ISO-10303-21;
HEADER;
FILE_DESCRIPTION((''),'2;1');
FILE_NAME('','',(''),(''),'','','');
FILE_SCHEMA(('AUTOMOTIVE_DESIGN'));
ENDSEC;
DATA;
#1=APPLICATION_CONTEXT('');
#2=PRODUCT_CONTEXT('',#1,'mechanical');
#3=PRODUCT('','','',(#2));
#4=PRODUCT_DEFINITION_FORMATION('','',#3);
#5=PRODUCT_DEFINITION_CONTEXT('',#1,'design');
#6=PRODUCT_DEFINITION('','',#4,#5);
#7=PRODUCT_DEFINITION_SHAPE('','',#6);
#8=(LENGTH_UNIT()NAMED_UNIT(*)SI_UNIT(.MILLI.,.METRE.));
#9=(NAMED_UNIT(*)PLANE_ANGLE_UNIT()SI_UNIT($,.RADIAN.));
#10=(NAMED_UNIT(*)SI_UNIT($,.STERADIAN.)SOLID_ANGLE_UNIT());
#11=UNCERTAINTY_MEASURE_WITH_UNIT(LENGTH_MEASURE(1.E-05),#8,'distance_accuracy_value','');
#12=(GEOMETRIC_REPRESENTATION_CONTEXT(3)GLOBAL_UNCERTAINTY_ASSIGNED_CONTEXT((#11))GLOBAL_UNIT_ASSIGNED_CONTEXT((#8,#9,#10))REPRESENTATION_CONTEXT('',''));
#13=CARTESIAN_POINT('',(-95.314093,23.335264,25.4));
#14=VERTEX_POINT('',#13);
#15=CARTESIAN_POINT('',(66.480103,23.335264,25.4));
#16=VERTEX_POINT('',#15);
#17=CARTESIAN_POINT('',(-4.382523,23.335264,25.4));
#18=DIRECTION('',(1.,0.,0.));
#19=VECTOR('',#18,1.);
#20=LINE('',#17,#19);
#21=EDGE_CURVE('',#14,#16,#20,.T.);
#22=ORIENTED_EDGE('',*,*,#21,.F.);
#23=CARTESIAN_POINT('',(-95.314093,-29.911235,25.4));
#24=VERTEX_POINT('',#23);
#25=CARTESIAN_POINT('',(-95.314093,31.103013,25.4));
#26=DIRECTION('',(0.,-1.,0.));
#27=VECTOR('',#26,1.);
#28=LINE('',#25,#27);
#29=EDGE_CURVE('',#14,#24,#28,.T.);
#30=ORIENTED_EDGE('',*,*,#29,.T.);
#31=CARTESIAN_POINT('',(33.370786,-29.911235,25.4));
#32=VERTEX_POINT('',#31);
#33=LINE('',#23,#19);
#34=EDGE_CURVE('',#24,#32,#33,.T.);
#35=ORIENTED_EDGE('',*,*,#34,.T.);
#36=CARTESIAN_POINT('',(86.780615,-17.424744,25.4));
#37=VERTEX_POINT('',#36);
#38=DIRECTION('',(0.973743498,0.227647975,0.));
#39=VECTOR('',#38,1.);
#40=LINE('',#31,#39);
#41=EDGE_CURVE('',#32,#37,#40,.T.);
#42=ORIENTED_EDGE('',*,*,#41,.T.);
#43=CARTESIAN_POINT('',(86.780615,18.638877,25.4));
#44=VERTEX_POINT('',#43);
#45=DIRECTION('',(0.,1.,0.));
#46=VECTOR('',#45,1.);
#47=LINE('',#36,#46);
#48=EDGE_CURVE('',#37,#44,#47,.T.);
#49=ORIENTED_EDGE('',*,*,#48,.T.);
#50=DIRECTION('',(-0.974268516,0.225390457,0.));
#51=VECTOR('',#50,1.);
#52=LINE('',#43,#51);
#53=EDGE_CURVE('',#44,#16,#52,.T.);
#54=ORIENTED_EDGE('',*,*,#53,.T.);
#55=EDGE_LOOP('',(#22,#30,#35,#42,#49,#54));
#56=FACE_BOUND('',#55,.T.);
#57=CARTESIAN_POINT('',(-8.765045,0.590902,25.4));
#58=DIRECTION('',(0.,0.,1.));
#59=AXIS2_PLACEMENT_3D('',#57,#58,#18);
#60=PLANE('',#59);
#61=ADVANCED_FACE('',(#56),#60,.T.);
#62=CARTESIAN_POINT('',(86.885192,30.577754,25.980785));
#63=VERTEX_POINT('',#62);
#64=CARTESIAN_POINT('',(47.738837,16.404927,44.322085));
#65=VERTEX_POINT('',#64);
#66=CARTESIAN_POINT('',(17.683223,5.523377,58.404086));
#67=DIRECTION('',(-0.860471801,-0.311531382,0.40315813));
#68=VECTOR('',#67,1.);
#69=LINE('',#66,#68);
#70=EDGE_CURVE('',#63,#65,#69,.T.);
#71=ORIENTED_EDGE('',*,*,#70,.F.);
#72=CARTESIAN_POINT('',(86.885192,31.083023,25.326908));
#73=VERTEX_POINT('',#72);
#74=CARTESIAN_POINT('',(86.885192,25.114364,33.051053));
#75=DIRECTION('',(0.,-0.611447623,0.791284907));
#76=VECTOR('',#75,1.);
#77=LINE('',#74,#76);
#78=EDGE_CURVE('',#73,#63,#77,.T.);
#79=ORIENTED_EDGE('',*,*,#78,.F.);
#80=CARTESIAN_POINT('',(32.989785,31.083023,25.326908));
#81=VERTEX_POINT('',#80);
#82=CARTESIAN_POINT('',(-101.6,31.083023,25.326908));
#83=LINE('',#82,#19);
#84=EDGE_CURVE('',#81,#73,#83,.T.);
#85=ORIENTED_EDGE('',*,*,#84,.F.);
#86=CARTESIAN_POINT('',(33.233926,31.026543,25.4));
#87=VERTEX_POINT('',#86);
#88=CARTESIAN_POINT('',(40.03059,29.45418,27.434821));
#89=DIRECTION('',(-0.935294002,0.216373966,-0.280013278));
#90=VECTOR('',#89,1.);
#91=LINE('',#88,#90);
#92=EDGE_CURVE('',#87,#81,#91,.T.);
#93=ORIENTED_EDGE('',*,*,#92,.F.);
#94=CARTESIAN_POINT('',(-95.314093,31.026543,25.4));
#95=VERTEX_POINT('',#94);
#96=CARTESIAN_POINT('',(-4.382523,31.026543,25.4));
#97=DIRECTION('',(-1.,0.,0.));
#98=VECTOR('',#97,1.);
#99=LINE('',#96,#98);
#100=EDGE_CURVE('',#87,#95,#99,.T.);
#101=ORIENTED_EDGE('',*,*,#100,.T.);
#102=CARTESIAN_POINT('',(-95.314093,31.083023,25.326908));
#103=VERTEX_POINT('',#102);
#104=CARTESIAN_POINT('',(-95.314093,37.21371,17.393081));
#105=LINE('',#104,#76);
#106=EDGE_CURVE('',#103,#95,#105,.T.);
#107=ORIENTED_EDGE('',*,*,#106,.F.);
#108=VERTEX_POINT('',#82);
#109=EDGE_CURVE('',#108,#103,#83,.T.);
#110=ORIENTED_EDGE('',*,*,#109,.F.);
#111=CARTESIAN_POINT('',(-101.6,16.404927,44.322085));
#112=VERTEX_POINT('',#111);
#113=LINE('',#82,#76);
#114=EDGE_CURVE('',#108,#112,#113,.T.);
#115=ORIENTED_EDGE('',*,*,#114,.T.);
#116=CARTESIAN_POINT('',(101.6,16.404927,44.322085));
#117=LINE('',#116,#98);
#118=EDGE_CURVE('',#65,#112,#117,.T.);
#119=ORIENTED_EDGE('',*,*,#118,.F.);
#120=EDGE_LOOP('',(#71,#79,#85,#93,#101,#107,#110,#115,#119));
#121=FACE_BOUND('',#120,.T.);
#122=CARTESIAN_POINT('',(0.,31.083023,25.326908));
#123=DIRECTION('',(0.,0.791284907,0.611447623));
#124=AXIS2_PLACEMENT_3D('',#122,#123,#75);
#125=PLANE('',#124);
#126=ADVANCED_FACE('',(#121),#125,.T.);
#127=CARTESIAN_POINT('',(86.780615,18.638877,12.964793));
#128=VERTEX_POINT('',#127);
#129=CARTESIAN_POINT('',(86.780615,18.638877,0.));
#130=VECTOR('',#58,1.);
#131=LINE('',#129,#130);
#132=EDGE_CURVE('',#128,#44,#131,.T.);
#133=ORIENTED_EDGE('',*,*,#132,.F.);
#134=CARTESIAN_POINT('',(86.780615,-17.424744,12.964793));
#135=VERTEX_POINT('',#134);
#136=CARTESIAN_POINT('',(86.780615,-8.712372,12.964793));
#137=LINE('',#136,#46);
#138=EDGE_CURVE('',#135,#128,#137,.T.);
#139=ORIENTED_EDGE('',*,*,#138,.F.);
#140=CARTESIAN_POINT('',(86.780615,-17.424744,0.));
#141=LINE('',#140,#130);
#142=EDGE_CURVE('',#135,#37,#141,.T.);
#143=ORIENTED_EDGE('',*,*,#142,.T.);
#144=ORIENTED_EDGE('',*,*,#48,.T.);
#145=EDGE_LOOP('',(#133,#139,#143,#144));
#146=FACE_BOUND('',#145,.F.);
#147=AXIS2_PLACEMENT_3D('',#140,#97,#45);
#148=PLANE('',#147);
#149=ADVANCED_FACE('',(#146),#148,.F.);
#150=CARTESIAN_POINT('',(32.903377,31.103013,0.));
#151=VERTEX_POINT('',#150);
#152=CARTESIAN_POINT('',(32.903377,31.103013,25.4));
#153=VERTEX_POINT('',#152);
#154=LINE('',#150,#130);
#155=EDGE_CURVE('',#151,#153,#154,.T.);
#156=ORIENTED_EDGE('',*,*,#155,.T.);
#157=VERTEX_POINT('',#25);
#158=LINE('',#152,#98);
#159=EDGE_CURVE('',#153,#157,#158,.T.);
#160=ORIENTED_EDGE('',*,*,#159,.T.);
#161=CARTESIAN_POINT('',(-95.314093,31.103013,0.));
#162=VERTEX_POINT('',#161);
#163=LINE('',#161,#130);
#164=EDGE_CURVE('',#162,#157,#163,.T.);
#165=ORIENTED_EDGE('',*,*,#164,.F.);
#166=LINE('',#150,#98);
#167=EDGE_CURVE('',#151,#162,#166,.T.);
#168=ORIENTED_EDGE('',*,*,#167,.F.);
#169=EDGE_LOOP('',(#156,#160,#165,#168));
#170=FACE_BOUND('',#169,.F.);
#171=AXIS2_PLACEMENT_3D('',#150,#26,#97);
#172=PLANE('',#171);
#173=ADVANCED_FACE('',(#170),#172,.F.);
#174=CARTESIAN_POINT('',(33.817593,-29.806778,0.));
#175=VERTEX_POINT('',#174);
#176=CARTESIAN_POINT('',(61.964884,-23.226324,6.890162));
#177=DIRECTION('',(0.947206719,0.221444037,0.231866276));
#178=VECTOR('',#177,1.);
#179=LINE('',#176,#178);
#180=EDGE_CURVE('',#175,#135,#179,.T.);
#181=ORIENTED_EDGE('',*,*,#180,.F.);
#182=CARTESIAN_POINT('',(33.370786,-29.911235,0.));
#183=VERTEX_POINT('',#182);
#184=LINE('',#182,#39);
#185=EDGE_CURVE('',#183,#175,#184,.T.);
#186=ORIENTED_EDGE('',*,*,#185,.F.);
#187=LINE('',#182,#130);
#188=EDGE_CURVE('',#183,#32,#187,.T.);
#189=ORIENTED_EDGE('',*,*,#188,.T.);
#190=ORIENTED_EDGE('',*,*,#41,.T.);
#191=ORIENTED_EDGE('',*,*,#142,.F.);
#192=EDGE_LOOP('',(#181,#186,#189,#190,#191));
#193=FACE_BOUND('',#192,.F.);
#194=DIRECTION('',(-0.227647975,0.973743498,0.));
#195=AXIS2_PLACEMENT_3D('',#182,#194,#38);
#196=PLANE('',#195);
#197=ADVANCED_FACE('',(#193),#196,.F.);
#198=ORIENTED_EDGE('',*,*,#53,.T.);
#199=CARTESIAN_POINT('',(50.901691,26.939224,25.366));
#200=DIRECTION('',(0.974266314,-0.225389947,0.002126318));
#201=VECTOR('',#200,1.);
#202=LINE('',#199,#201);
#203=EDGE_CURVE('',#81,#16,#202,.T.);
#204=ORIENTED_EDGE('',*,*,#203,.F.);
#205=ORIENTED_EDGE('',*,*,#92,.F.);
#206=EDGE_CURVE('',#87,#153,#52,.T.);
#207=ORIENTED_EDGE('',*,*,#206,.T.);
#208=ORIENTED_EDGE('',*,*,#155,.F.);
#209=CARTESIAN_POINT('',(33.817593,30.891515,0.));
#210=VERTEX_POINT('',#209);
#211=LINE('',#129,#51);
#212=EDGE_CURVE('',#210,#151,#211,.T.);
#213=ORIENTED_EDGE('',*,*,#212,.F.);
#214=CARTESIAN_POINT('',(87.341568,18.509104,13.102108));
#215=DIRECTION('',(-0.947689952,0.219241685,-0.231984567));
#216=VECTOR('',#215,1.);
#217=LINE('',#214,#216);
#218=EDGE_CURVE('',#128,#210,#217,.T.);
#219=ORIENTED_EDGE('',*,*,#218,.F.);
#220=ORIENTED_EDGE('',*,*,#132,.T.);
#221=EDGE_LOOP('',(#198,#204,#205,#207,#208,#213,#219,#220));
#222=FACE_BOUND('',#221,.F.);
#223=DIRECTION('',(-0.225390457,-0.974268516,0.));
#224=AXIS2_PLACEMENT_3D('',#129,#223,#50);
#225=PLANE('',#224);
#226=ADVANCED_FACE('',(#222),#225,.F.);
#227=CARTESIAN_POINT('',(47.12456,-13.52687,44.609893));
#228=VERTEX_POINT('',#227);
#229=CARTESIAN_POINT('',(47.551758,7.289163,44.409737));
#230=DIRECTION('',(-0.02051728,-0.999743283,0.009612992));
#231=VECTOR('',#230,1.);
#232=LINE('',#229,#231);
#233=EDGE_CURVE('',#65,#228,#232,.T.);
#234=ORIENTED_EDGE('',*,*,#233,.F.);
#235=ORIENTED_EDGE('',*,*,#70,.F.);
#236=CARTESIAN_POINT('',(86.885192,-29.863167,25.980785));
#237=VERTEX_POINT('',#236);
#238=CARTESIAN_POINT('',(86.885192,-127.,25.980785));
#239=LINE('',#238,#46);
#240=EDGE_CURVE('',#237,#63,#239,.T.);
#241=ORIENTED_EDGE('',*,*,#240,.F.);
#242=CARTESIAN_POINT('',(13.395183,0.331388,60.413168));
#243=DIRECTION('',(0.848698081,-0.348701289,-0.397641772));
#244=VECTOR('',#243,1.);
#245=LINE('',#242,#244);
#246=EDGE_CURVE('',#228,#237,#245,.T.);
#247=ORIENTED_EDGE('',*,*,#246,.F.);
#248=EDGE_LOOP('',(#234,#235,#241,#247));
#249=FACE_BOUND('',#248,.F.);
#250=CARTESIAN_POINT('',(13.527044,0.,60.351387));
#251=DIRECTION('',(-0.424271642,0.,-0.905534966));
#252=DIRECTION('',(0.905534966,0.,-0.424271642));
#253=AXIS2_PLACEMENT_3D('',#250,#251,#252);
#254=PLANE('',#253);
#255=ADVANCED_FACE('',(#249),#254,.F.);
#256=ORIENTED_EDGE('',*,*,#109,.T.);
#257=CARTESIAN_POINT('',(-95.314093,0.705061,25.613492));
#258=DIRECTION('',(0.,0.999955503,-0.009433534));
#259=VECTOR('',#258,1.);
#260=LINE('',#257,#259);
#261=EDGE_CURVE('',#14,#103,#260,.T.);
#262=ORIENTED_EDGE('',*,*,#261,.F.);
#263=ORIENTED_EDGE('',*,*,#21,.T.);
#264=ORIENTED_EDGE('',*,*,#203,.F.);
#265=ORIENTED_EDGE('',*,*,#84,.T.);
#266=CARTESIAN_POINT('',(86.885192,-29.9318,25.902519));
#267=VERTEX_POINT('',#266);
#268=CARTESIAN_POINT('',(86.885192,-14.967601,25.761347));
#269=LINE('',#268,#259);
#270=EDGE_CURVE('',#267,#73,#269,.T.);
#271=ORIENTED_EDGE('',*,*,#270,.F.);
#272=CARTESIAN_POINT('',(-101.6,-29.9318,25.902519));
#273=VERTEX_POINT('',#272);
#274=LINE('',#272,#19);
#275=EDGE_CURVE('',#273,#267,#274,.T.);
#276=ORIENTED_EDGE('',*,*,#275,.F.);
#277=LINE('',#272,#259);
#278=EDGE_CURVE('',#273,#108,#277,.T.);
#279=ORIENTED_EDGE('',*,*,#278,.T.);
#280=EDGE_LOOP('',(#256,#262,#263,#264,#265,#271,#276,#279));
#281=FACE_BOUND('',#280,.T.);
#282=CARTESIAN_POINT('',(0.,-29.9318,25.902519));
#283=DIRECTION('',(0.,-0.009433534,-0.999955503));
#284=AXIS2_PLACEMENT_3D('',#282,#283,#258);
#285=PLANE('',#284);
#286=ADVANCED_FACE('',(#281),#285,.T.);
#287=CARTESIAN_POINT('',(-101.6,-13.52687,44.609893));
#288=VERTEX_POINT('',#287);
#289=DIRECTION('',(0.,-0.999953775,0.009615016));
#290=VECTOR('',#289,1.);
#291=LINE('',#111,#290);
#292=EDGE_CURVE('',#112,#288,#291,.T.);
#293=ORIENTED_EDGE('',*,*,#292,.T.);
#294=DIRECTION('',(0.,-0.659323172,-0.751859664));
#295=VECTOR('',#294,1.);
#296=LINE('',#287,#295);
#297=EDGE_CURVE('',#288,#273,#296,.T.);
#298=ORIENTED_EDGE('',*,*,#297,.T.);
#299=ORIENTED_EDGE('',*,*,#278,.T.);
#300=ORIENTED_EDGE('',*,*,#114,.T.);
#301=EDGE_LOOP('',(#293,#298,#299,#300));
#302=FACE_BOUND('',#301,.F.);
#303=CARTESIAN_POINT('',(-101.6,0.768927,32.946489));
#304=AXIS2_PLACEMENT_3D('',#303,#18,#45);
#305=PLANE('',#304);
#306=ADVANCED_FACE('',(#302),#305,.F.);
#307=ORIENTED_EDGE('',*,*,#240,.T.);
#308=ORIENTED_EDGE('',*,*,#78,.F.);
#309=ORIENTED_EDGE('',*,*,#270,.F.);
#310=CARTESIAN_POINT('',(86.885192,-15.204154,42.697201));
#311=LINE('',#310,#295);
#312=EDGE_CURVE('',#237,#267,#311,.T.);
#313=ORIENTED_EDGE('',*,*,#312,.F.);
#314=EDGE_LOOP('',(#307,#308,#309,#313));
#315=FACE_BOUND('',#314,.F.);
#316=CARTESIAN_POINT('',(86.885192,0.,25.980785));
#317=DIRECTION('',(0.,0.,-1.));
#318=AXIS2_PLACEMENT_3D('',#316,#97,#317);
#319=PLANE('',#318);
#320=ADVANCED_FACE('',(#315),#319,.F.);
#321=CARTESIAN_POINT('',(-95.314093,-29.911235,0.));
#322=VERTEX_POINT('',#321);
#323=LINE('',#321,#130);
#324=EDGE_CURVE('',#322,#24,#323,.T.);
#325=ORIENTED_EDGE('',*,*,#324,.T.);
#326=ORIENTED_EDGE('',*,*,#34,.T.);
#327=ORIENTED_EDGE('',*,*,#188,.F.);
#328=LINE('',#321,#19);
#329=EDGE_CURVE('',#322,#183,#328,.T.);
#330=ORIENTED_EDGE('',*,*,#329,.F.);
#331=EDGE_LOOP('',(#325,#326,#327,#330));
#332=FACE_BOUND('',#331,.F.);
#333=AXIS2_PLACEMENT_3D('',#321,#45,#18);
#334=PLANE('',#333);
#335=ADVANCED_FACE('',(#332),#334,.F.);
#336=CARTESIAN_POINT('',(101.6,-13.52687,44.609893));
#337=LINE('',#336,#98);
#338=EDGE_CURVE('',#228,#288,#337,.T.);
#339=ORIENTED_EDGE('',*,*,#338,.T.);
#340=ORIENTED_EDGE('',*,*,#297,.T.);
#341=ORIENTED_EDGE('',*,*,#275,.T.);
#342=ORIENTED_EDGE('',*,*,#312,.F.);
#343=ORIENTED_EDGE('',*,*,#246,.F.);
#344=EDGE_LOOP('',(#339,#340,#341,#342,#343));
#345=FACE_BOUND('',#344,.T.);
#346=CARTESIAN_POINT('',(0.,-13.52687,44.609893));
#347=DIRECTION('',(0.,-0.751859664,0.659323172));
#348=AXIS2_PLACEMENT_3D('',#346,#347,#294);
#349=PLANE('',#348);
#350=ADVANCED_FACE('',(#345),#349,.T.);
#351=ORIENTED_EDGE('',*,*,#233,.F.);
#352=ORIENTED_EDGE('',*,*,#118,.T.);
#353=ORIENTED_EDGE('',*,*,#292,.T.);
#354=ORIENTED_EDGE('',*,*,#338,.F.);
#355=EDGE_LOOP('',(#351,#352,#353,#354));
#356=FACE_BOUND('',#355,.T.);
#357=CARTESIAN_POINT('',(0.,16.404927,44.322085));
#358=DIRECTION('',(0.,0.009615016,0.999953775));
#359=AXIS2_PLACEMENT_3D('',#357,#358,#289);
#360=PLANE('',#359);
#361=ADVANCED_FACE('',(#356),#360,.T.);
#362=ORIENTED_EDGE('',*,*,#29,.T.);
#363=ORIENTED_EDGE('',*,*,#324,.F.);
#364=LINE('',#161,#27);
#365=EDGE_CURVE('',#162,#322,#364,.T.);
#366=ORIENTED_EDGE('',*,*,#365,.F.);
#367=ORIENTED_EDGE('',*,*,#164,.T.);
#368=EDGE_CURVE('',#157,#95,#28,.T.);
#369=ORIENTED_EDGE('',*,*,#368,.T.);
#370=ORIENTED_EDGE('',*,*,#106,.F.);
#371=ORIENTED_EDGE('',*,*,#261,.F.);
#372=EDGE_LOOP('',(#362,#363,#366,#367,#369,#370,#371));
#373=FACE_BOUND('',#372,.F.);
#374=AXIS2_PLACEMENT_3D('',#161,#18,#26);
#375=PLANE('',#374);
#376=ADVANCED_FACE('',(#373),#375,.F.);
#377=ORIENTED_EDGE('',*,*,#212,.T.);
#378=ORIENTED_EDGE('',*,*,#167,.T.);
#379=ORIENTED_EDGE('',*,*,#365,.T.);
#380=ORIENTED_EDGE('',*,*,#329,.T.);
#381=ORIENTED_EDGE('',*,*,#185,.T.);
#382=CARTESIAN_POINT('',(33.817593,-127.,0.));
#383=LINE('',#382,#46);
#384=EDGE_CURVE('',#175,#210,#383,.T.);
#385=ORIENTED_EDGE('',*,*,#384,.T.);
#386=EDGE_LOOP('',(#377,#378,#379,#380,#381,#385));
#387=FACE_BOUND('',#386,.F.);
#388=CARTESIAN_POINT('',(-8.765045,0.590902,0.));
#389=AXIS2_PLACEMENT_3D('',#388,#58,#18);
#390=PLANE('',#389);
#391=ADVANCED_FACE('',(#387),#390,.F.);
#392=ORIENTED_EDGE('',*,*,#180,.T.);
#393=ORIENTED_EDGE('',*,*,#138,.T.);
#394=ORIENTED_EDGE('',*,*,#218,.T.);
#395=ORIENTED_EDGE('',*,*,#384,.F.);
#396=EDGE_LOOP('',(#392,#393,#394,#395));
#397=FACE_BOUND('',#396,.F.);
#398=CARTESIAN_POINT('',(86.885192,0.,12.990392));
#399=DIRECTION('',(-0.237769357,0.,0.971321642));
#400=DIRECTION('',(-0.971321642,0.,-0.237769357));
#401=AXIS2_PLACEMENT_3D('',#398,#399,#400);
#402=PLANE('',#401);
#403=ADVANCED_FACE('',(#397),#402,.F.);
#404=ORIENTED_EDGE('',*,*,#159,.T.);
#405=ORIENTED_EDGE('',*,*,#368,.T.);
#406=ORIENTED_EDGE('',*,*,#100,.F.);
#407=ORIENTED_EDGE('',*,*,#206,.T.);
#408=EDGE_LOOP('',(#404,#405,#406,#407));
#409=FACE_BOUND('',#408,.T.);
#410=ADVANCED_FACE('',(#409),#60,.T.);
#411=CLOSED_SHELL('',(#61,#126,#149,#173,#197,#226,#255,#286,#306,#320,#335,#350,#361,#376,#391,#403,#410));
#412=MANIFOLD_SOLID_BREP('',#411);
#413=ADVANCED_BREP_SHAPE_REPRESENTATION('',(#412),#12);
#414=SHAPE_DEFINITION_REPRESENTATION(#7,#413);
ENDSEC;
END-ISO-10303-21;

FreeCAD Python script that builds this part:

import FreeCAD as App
import Part
import Sketcher
from FreeCAD import Vector
Q = App.Units.Quantity

doc = App.newDocument("Part")
body = doc.addObject("PartDesign::Body", "Body")

sketch1 = doc.addObject("Sketcher::SketchObject", "Sketch")
body.addObject(sketch1)
sketch1.AttachmentSupport = (doc.XY_Plane, [""])
sketch1.MapMode = "FlatFace"
sketch1.addGeometry([
    Part.LineSegment(Vector(32.903377, 31.103013, 0), Vector(-95.314093, 31.103013, 0)),
    Part.LineSegment(Vector(-95.314093, 31.103013, 0), Vector(-95.314093, -29.911235, 0)),
    Part.LineSegment(Vector(-95.314093, -29.911235, 0), Vector(33.370786, -29.911235, 0)),
    Part.LineSegment(Vector(33.370786, -29.911235, 0), Vector(86.780615, -17.424744, 0)),
    Part.LineSegment(Vector(86.780615, -17.424744, 0), Vector(86.780615, 18.638877, 0)),
    Part.LineSegment(Vector(86.780615, 18.638877, 0), Vector(32.903377, 31.103013, 0)),
], False)
sketch1.addConstraint([
    Sketcher.Constraint("Coincident", 0, 2, 1, 1),
    Sketcher.Constraint("Coincident", 1, 2, 2, 1),
    Sketcher.Constraint("Coincident", 2, 2, 3, 1),
    Sketcher.Constraint("Coincident", 3, 2, 4, 1),
    Sketcher.Constraint("Coincident", 4, 2, 5, 1),
    Sketcher.Constraint("Coincident", 5, 2, 0, 1),
    Sketcher.Constraint("Horizontal", 0),
    Sketcher.Constraint("Vertical", 1),
    Sketcher.Constraint("Horizontal", 2),
    Sketcher.Constraint("Vertical", 4),
    Sketcher.Constraint("Distance", 3, Q("54.849998 mm")),
    Sketcher.Constraint("DistanceX", 0, 2, 0, 1, Q("128.21747 mm")),
    Sketcher.Constraint("DistanceX", 2, 1, 2, 2, Q("128.684879 mm")),
    Sketcher.Constraint("DistanceY", 1, 2, 1, 1, Q("61.014248 mm")),
    Sketcher.Constraint("DistanceY", 4, 1, 4, 2, Q("36.063621 mm")),
    Sketcher.Constraint("DistanceX", 2, 2, 3, 2, Q("53.409829 mm")),
    Sketcher.Constraint("DistanceX", 0, 2, -1, 1, Q("95.314093 mm")),
    Sketcher.Constraint("DistanceY", -1, 1, 0, 2, Q("31.103013 mm")),
])
pad1 = doc.addObject("PartDesign::Pad", "Pad")
body.addObject(pad1)
pad1.Profile = sketch1
pad1.Length = Q("1 in")

sketch2 = doc.addObject("Sketcher::SketchObject", "Sketch001")
body.addObject(sketch2)
sketch2.AttachmentSupport = (doc.YZ_Plane, [""])
sketch2.MapMode = "FlatFace"
sketch2.addGeometry([
    Part.LineSegment(Vector(-13.52687, 44.609893, 0), Vector(-29.9318, 25.902519, 0)),
    Part.LineSegment(Vector(-29.9318, 25.902519, 0), Vector(31.083023, 25.326908, 0)),
    Part.LineSegment(Vector(31.083023, 25.326908, 0), Vector(16.404927, 44.322085, 0)),
    Part.LineSegment(Vector(16.404927, 44.322085, 0), Vector(-13.52687, 44.609893, 0)),
], False)
sketch2.addConstraint([
    Sketcher.Constraint("Coincident", 0, 2, 1, 1),
    Sketcher.Constraint("Coincident", 1, 2, 2, 1),
    Sketcher.Constraint("Coincident", 2, 2, 3, 1),
    Sketcher.Constraint("Coincident", 3, 2, 0, 1),
    Sketcher.Constraint("DistanceX", 0, 2, -1, 1, Q("29.9318 mm")),
    Sketcher.Constraint("Distance", 0, Q("24.88147 mm")),
    Sketcher.Constraint("Distance", 1, Q("61.017538 mm")),
    Sketcher.Constraint("Distance", 3, Q("29.933181 mm")),
    Sketcher.Constraint("DistanceY", -1, 1, 0, 2, Q("25.902519 mm")),
    Sketcher.Constraint("DistanceX", 3, 2, -1, 1, Q("13.52687 mm")),
    Sketcher.Constraint("DistanceY", 1, 2, 0, 2, Q("0.575611 mm")),
    Sketcher.Constraint("Distance", 2, Q("24.005484 mm")),
])
pad2 = doc.addObject("PartDesign::Pad", "Pad001")
body.addObject(pad2)
pad2.Profile = sketch2
pad2.Length = Q("8 in")
pad2.Midplane = True

sketch3 = doc.addObject("Sketcher::SketchObject", "Sketch002")
body.addObject(sketch3)
sketch3.AttachmentSupport = (doc.XZ_Plane, [""])
sketch3.MapMode = "FlatFace"
sketch3.addGeometry([
    Part.LineSegment(Vector(33.817593, 0, 0), Vector(110.29736, 0, 0)),
    Part.LineSegment(Vector(110.29736, 0, 0), Vector(110.29736, 60.351387, 0)),
    Part.LineSegment(Vector(110.29736, 60.351387, 0), Vector(13.527044, 60.351387, 0)),
    Part.LineSegment(Vector(13.527044, 60.351387, 0), Vector(86.885192, 25.980785, 0)),
    Part.LineSegment(Vector(86.885192, 25.980785, 0), Vector(86.885192, 12.990392, 0)),
    Part.LineSegment(Vector(86.885192, 12.990392, 0), Vector(33.817593, 0, 0)),
], False)
sketch3.addConstraint([
    Sketcher.Constraint("Coincident", 0, 2, 1, 1),
    Sketcher.Constraint("Coincident", 1, 2, 2, 1),
    Sketcher.Constraint("Coincident", 2, 2, 3, 1),
    Sketcher.Constraint("Coincident", 3, 2, 4, 1),
    Sketcher.Constraint("Coincident", 4, 2, 5, 1),
    Sketcher.Constraint("Coincident", 5, 2, 0, 1),
    Sketcher.Constraint("Horizontal", 0),
    Sketcher.Constraint("Vertical", 1),
    Sketcher.Constraint("Horizontal", 2),
    Sketcher.Constraint("Vertical", 4),
    Sketcher.Constraint("PointOnObject", 0, 2, -1),
    Sketcher.Constraint("DistanceX", 5, 2, 4, 2, Q("53.067599 mm")),
    Sketcher.Constraint("Distance", 3, Q("81.01084 mm")),
    Sketcher.Constraint("DistanceX", 0, 1, 0, 2, Q("76.479767 mm")),
    Sketcher.Constraint("DistanceX", 2, 2, 2, 1, Q("96.770316 mm")),
    Sketcher.Constraint("DistanceY", 1, 1, 1, 2, Q("60.351387 mm")),
    Sketcher.Constraint("DistanceY", 4, 2, 4, 1, Q("12.990393 mm")),
    Sketcher.Constraint("DistanceX", -1, 1, 0, 2, Q("110.29736 mm")),
])
pocket1 = doc.addObject("PartDesign::Pocket", "Pocket")
body.addObject(pocket1)
pocket1.Profile = sketch3
pocket1.Length = Q("10 in")
pocket1.Midplane = True

doc.recompute()
